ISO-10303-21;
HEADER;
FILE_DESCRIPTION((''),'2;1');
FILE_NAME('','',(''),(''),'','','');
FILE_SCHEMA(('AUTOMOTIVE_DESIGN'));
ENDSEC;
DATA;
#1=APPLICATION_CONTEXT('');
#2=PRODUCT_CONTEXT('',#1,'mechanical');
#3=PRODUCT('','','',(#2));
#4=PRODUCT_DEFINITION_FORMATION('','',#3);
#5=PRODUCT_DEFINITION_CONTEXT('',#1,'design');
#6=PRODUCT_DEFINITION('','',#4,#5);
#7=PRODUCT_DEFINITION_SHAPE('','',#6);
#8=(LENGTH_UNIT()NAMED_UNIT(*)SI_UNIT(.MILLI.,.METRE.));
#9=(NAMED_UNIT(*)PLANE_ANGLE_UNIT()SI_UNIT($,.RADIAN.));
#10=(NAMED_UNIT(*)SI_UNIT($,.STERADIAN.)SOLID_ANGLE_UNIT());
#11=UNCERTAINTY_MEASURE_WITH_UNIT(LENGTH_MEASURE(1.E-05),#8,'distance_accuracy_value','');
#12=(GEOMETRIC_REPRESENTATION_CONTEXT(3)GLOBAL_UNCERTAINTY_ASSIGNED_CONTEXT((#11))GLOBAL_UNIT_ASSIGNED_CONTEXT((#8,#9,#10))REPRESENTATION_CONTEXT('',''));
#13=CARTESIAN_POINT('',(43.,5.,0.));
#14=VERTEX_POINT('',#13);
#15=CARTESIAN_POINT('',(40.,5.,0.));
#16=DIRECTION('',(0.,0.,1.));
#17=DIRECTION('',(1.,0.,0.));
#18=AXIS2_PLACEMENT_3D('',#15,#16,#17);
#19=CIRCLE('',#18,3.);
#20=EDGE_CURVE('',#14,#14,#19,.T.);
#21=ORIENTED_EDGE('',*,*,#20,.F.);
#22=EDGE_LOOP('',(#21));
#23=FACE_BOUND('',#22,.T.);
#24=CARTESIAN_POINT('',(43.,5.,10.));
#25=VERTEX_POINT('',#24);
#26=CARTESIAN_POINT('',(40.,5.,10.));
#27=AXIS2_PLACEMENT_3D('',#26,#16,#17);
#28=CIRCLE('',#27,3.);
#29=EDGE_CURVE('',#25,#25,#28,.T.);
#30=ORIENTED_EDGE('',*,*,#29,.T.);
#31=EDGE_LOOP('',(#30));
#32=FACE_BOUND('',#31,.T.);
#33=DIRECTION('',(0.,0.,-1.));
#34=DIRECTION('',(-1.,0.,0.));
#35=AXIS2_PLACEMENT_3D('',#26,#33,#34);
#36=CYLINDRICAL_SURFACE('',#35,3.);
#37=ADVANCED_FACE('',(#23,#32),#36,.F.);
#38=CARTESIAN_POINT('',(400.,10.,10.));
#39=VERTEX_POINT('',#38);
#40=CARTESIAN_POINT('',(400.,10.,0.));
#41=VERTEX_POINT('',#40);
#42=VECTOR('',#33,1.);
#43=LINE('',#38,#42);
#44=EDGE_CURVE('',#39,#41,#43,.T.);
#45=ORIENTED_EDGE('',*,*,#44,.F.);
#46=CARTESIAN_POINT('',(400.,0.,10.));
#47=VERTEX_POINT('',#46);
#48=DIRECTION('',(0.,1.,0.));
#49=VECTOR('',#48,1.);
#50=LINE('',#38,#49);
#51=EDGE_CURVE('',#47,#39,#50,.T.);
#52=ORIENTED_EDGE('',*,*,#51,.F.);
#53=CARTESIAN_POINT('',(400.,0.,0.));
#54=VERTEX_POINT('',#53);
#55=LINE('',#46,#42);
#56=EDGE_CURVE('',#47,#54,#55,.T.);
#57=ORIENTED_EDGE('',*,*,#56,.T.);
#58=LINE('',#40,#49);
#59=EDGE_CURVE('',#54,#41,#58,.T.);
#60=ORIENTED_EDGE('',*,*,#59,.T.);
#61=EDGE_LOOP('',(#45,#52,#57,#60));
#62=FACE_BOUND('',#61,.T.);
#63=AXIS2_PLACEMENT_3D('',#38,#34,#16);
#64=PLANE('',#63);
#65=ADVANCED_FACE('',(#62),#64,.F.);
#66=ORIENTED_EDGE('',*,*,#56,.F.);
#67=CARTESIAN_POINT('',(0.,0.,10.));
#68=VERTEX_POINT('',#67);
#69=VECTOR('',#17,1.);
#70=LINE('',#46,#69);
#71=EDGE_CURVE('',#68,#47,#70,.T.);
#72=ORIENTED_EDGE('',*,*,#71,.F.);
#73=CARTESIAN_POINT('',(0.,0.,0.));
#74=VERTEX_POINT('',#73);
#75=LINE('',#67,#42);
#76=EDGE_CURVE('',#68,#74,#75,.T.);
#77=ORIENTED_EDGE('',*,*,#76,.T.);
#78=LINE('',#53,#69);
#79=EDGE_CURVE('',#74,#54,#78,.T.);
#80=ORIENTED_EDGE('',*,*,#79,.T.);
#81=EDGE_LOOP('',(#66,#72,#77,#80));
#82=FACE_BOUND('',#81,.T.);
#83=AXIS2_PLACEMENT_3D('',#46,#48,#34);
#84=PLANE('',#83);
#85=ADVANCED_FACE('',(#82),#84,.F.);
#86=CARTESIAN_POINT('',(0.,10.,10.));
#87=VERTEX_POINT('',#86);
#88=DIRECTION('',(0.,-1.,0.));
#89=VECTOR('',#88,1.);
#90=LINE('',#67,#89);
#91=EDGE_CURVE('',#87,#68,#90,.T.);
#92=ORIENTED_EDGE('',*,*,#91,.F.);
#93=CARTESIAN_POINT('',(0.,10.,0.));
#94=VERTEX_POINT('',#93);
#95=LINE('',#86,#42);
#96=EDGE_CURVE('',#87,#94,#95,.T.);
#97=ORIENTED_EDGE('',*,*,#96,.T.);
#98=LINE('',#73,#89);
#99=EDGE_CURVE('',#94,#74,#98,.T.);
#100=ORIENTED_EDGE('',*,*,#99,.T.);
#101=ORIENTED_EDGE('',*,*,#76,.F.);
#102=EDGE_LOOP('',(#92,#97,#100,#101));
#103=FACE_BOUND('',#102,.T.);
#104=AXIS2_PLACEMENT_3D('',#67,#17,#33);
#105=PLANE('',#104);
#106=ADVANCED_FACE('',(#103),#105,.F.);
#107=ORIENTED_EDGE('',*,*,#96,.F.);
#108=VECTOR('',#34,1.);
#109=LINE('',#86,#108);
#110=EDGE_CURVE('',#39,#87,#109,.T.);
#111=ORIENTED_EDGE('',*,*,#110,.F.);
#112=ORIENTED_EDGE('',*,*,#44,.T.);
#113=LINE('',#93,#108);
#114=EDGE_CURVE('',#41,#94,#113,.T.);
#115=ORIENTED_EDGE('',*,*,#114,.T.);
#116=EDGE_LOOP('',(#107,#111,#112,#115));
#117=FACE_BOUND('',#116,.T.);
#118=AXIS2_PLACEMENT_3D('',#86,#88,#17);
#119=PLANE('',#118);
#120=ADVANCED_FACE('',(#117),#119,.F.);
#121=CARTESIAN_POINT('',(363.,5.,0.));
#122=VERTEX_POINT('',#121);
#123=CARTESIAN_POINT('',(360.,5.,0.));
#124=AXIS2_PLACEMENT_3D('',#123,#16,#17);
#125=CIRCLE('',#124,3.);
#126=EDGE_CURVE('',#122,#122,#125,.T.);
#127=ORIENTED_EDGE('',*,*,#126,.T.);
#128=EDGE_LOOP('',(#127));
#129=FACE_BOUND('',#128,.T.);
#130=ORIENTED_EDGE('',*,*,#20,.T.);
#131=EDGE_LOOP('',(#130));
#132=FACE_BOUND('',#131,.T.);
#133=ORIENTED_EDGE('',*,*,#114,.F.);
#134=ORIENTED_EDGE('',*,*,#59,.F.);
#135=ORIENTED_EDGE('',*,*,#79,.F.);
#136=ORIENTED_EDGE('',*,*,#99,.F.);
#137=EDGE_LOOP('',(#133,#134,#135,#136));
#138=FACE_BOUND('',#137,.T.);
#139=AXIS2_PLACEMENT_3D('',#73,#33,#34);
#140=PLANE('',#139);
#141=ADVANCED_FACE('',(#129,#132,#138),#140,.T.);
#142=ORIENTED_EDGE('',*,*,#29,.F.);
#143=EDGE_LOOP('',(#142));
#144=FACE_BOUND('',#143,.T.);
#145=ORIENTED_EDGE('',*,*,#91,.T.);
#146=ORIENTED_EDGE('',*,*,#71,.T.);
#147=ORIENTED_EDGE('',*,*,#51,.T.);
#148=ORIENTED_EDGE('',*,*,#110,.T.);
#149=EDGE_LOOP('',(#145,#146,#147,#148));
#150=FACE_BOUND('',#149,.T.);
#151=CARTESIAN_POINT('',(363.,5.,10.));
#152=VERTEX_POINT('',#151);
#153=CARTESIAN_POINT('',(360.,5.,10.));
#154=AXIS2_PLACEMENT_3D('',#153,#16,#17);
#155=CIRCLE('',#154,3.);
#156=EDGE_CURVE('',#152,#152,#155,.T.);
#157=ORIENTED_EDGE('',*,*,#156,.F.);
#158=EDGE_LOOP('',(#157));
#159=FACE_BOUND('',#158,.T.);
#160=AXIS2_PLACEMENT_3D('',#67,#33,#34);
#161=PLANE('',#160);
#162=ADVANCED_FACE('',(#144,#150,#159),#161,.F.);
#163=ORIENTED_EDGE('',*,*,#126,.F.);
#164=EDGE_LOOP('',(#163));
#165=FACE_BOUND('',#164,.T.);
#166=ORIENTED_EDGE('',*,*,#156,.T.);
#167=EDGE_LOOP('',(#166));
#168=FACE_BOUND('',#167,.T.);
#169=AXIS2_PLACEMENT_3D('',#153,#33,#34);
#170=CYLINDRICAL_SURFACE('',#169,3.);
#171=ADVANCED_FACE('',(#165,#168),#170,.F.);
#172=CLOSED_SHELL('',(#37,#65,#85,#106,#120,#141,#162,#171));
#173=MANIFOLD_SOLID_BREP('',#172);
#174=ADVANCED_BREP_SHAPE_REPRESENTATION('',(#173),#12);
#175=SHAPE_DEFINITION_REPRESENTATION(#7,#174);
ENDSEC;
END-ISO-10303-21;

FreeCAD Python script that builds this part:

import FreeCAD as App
import Part
import Sketcher
from FreeCAD import Vector
Q = App.Units.Quantity

doc = App.newDocument("Part")
body = doc.addObject("PartDesign::Body", "Body")

# Sketch on XY plane
sketch1 = body.newObject("Sketcher::SketchObject", "Sketch")
sketch1.AttachmentSupport = (doc.getObject("XY_Plane"), [""])
sketch1.MapMode = "FlatFace"
sketch1.addGeometry([
    Part.LineSegment(Vector(0, 10, 0), Vector(0, 0, 0)),  # 0
    Part.LineSegment(Vector(0, 0, 0), Vector(400, 0, 0)),  # 1
    Part.LineSegment(Vector(400, 0, 0), Vector(400, 10, 0)),  # 2
    Part.LineSegment(Vector(400, 10, 0), Vector(0, 10, 0)),  # 3
    Part.Circle(Vector(40, 5, 0), Vector(0, 0, 1), 3),  # 4
    Part.Circle(Vector(360, 5, 0), Vector(0, 0, 1), 3),  # 5
], False)
sketch1.addConstraint([
    Sketcher.Constraint("Coincident", 0, 2, 1, 1),
    Sketcher.Constraint("Coincident", 1, 2, 2, 1),
    Sketcher.Constraint("Coincident", 2, 2, 3, 1),
    Sketcher.Constraint("Coincident", 3, 2, 0, 1),
    Sketcher.Constraint("Vertical", 0),
    Sketcher.Constraint("Horizontal", 1),
    Sketcher.Constraint("Vertical", 2),
    Sketcher.Constraint("Horizontal", 3),
    Sketcher.Constraint("Coincident", 0, 2, -1, 1),
    Sketcher.Constraint("Equal", 4, 5),
    Sketcher.Constraint("Horizontal", 4, 3, 5, 3),
    Sketcher.Constraint("Diameter", 4, Q("6 mm")),
    Sketcher.Constraint("DistanceX", 1, 1, 1, 2, Q("400 mm")),
    Sketcher.Constraint("DistanceY", 0, 2, 0, 1, Q("10 mm")),
    Sketcher.Constraint("DistanceX", -1, 1, 4, 3, Q("40 mm")),
    Sketcher.Constraint("DistanceY", -1, 1, 4, 3, Q("5 mm")),
    Sketcher.Constraint("DistanceX", -1, 1, 5, 3, Q("360 mm")),
])
pad1 = body.newObject("PartDesign::Pad", "Pad")
pad1.Profile = sketch1
pad1.Length = 10

doc.recompute()
